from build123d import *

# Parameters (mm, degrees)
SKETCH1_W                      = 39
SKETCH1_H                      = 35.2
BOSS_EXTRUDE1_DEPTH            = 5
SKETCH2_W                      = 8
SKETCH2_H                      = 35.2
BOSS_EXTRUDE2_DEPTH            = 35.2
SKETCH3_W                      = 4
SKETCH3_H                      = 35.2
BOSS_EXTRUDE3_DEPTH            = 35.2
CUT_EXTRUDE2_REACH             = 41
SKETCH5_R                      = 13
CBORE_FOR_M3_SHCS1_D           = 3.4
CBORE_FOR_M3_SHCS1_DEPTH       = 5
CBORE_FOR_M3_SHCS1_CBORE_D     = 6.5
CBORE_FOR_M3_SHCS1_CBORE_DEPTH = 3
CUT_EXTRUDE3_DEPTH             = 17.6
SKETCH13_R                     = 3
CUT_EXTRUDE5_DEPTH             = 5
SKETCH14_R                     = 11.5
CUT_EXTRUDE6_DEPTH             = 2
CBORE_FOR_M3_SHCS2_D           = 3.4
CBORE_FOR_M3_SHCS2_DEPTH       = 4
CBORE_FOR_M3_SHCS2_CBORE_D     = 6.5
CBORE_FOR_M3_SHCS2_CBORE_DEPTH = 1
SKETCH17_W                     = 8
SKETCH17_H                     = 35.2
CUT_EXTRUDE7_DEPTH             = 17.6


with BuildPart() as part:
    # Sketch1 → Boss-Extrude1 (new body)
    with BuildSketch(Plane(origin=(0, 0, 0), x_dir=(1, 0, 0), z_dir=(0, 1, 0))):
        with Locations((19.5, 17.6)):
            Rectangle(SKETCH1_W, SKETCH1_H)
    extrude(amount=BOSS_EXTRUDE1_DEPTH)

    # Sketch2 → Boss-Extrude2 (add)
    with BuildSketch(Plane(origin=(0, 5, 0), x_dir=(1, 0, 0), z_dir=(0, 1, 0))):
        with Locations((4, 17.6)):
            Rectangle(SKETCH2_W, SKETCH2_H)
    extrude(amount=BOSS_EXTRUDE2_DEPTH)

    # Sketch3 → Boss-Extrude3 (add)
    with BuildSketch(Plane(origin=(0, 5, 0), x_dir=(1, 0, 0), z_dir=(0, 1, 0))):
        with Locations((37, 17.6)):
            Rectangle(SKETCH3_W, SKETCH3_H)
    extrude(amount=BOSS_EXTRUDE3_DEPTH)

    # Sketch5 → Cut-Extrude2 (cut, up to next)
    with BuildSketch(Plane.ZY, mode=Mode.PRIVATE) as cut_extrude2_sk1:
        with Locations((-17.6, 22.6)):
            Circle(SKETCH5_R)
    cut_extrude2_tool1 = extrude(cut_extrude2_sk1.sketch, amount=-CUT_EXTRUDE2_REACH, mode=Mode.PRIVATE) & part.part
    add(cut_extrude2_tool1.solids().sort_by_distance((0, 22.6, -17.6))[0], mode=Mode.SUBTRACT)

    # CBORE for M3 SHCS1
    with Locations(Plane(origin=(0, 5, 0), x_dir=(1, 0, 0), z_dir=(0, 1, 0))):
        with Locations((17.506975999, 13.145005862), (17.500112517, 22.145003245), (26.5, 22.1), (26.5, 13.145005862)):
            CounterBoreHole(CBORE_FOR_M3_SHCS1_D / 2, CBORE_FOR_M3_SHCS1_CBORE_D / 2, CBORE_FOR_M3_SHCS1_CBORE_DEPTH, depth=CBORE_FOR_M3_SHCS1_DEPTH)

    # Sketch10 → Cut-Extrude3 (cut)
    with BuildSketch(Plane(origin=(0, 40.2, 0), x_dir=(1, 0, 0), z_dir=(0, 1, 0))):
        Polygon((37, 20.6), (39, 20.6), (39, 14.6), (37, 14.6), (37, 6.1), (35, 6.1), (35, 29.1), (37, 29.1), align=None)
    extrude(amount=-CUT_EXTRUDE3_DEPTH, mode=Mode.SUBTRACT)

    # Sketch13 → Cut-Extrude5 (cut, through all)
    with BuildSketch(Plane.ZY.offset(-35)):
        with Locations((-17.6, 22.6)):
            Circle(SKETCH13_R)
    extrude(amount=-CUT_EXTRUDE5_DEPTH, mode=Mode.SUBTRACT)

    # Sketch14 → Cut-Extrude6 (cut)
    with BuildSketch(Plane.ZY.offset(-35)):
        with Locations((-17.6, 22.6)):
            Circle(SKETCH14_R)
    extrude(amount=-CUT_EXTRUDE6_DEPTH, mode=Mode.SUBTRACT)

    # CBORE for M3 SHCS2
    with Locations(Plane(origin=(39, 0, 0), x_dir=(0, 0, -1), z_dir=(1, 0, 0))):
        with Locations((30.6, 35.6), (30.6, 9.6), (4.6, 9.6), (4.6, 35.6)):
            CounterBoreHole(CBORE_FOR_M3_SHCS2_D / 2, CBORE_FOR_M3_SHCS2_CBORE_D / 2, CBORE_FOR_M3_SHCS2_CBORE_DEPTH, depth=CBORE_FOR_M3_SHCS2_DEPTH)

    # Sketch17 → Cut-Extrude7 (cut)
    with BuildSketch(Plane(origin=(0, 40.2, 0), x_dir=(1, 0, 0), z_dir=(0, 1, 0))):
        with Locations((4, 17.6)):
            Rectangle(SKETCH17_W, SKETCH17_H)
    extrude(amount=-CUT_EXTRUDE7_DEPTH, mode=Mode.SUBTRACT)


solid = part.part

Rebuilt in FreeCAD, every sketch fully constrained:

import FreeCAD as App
import Part
import Sketcher
Q = App.Units.Quantity


def add_polygon(sketch, points):
    """Adds a closed chain of lines whose ends are joined by coincident constraints."""
    first, n = sketch.GeometryCount, len(points)
    for a, b in zip(points, points[1:] + points[:1]):
        sketch.addGeometry(Part.LineSegment(App.Vector(*a, 0), App.Vector(*b, 0)), False)
    for i in range(n):
        sketch.addConstraint(Sketcher.Constraint("Coincident", first + i, 2, first + (i + 1) % n, 1))

doc = App.newDocument("Part")
body = doc.addObject("PartDesign::Body", "Body")

# Sketch on XZ plane
sketch1 = doc.addObject("Sketcher::SketchObject", "Sketch")
body.addObject(sketch1)
sketch1.AttachmentSupport = (doc.XZ_Plane, [""])
sketch1.MapMode = "FlatFace"
add_polygon(sketch1, [(0, -35), (0, 0), (39, 0), (39, -35)])  # lines 0-3
sketch1.addConstraint(Sketcher.Constraint("Vertical", 0))
sketch1.addConstraint(Sketcher.Constraint("Horizontal", 1))
sketch1.addConstraint(Sketcher.Constraint("Vertical", 2))
sketch1.addConstraint(Sketcher.Constraint("Horizontal", 3))
sketch1.addConstraint(Sketcher.Constraint("Coincident", 0, 2, -1, 1))
sketch1.addConstraint(Sketcher.Constraint("DistanceX", 1, 1, 1, 2, Q("39 mm")))
sketch1.addConstraint(Sketcher.Constraint("DistanceY", 0, 1, 0, 2, Q("35.2 mm")))
pad1 = doc.addObject("PartDesign::Pad", "Pad")
body.addObject(pad1)
pad1.Profile = sketch1
pad1.Length = 5
pad1.Reversed = True

# Sketch on XZ plane
sketch2 = doc.addObject("Sketcher::SketchObject", "Sketch001")
body.addObject(sketch2)
sketch2.AttachmentSupport = (doc.XZ_Plane, [""])
sketch2.MapMode = "FlatFace"
sketch2.AttachmentOffset = App.Placement(App.Vector(0, 0, -5), App.Rotation())
add_polygon(sketch2, [(0, -35), (0, 0), (8, 0), (8, -35)])  # lines 0-3
sketch2.addConstraint(Sketcher.Constraint("Vertical", 0))
sketch2.addConstraint(Sketcher.Constraint("Horizontal", 1))
sketch2.addConstraint(Sketcher.Constraint("Vertical", 2))
sketch2.addConstraint(Sketcher.Constraint("Horizontal", 3))
sketch2.addConstraint(Sketcher.Constraint("Coincident", 0, 2, -1, 1))
sketch2.addConstraint(Sketcher.Constraint("DistanceX", 1, 1, 1, 2, Q("8 mm")))
sketch2.addConstraint(Sketcher.Constraint("DistanceY", 0, 1, 0, 2, Q("35.2 mm")))
pad2 = doc.addObject("PartDesign::Pad", "Pad001")
body.addObject(pad2)
pad2.Profile = sketch2
pad2.Length = 35.2
pad2.Reversed = True

# Sketch on XZ plane
sketch3 = doc.addObject("Sketcher::SketchObject", "Sketch002")
body.addObject(sketch3)
sketch3.AttachmentSupport = (doc.XZ_Plane, [""])
sketch3.MapMode = "FlatFace"
sketch3.AttachmentOffset = App.Placement(App.Vector(0, 0, -5), App.Rotation())
add_polygon(sketch3, [(35, -35.2), (35, 0), (39, 0), (39, -35.2)])  # lines 0-3
sketch3.addConstraint(Sketcher.Constraint("Vertical", 0))
sketch3.addConstraint(Sketcher.Constraint("Horizontal", 1))
sketch3.addConstraint(Sketcher.Constraint("Vertical", 2))
sketch3.addConstraint(Sketcher.Constraint("Horizontal", 3))
sketch3.addConstraint(Sketcher.Constraint("PointOnObject", 0, 2, -1))
sketch3.addConstraint(Sketcher.Constraint("DistanceX", 1, 1, 1, 2, Q("4 mm")))
sketch3.addConstraint(Sketcher.Constraint("DistanceY", 0, 1, 0, 2, Q("35.2 mm")))
sketch3.addConstraint(Sketcher.Constraint("DistanceX", -1, 1, 0, 2, Q("35 mm")))
pad3 = doc.addObject("PartDesign::Pad", "Pad002")
body.addObject(pad3)
pad3.Profile = sketch3
pad3.Length = 35.2
pad3.Reversed = True

# Sketch on YZ plane
sketch4 = doc.addObject("Sketcher::SketchObject", "Sketch003")
body.addObject(sketch4)
sketch4.AttachmentSupport = (doc.YZ_Plane, [""])
sketch4.MapMode = "FlatFace"
sketch4.addGeometry(Part.Circle(App.Vector(23, -18, 0), App.Vector(0, 0, 1), 13), False)
sketch4.addConstraint(Sketcher.Constraint("Diameter", 0, Q("26 mm")))
sketch4.addConstraint(Sketcher.Constraint("DistanceX", -1, 1, 0, 3, Q("22.6 mm")))
sketch4.addConstraint(Sketcher.Constraint("DistanceY", 0, 3, -1, 1, Q("17.6 mm")))
pocket1 = doc.addObject("PartDesign::Pocket", "Pocket")
body.addObject(pocket1)
pocket1.Profile = sketch4
pocket1.Type = "UpToFirst"
pocket1.Reversed = True

# Sketch on XZ plane
sketch5 = doc.addObject("Sketcher::SketchObject", "Sketch004")
body.addObject(sketch5)
sketch5.AttachmentSupport = (doc.XZ_Plane, [""])
sketch5.MapMode = "FlatFace"
sketch5.AttachmentOffset = App.Placement(App.Vector(0, 0, -5), App.Rotation())
sketch5.addGeometry(Part.Circle(App.Vector(17.5, -13.1, 0), App.Vector(0, 0, 1), 1.7), False)
sketch5.addGeometry(Part.Circle(App.Vector(17.5, -22.1, 0), App.Vector(0, 0, 1), 1.7), False)
sketch5.addGeometry(Part.Circle(App.Vector(26.5, -22.1, 0), App.Vector(0, 0, 1), 1.7), False)
sketch5.addGeometry(Part.Circle(App.Vector(26.5, -13.1, 0), App.Vector(0, 0, 1), 1.7), False)
sketch5.addConstraint(Sketcher.Constraint("Equal", 0, 1))
sketch5.addConstraint(Sketcher.Constraint("Equal", 1, 2))
sketch5.addConstraint(Sketcher.Constraint("Equal", 2, 3))
sketch5.addConstraint(Sketcher.Constraint("Horizontal", 0, 3, 3, 3))
sketch5.addConstraint(Sketcher.Constraint("Vertical", 2, 3, 3, 3))
sketch5.addConstraint(Sketcher.Constraint("Diameter", 0, Q("3.4 mm")))
sketch5.addConstraint(Sketcher.Constraint("DistanceX", -1, 1, 2, 3, Q("26.5 mm")))
sketch5.addConstraint(Sketcher.Constraint("DistanceY", 2, 3, -1, 1, Q("22.1 mm")))
sketch5.addConstraint(Sketcher.Constraint("DistanceX", -1, 1, 0, 3, Q("17.506976 mm")))
sketch5.addConstraint(Sketcher.Constraint("DistanceY", 0, 3, -1, 1, Q("13.145006 mm")))
sketch5.addConstraint(Sketcher.Constraint("DistanceX", -1, 1, 1, 3, Q("17.500113 mm")))
sketch5.addConstraint(Sketcher.Constraint("DistanceY", 1, 3, -1, 1, Q("22.145003 mm")))
doc.recompute()
hole = doc.addObject("PartDesign::Hole", "Hole")
body.addObject(hole)
hole.Profile = sketch5
hole.ThreadType = "None"
hole.Diameter = 3.4
hole.DepthType = "Dimension"
hole.Depth = 5
hole.DrillPoint = "Flat"
hole.HoleCutType = "Counterbore"
hole.HoleCutDiameter = 6.5
hole.HoleCutDepth = 3
hole.Reversed = True

# Sketch on XZ plane
sketch6 = doc.addObject("Sketcher::SketchObject", "Sketch005")
body.addObject(sketch6)
sketch6.AttachmentSupport = (doc.XZ_Plane, [""])
sketch6.MapMode = "FlatFace"
sketch6.AttachmentOffset = App.Placement(App.Vector(0, 0, -40.2), App.Rotation())
add_polygon(sketch6, [(39, -20.6), (37, -20.6), (37, -29.1), (35, -29.1), (35, -6.1), (37, -6.1), (37, -14.6), (39, -14.6)])  # lines 0-7
sketch6.addConstraint(Sketcher.Constraint("Horizontal", 0))
sketch6.addConstraint(Sketcher.Constraint("Vertical", 1))
sketch6.addConstraint(Sketcher.Constraint("Horizontal", 2))
sketch6.addConstraint(Sketcher.Constraint("Vertical", 3))
sketch6.addConstraint(Sketcher.Constraint("Horizontal", 4))
sketch6.addConstraint(Sketcher.Constraint("Vertical", 5))
sketch6.addConstraint(Sketcher.Constraint("Horizontal", 6))
sketch6.addConstraint(Sketcher.Constraint("Vertical", 7))
sketch6.addConstraint(Sketcher.Constraint("Vertical", 1, 2, 4, 2))
sketch6.addConstraint(Sketcher.Constraint("Equal", 0, 2))
sketch6.addConstraint(Sketcher.Constraint("Equal", 1, 5))
sketch6.addConstraint(Sketcher.Constraint("DistanceX", 0, 2, 0, 1, Q("2 mm")))
sketch6.addConstraint(Sketcher.Constraint("DistanceY", 3, 1, 3, 2, Q("23 mm")))
sketch6.addConstraint(Sketcher.Constraint("DistanceY", 7, 2, 7, 1, Q("6 mm")))
sketch6.addConstraint(Sketcher.Constraint("DistanceX", -1, 1, 0, 2, Q("37 mm")))
sketch6.addConstraint(Sketcher.Constraint("DistanceY", 0, 2, -1, 1, Q("20.6 mm")))
pocket2 = doc.addObject("PartDesign::Pocket", "Pocket001")
body.addObject(pocket2)
pocket2.Profile = sketch6
pocket2.Length = 17.6
pocket2.Reversed = True

# Sketch on YZ plane
sketch7 = doc.addObject("Sketcher::SketchObject", "Sketch006")
body.addObject(sketch7)
sketch7.AttachmentSupport = (doc.YZ_Plane, [""])
sketch7.MapMode = "FlatFace"
sketch7.AttachmentOffset = App.Placement(App.Vector(0, 0, 35), App.Rotation())
sketch7.addGeometry(Part.Circle(App.Vector(22.6, -17.6, 0), App.Vector(0, 0, 1), 3), False)
sketch7.addConstraint(Sketcher.Constraint("Diameter", 0, Q("6 mm")))
sketch7.addConstraint(Sketcher.Constraint("DistanceX", -1, 1, 0, 3, Q("22.6 mm")))
sketch7.addConstraint(Sketcher.Constraint("DistanceY", 0, 3, -1, 1, Q("17.6 mm")))
pocket3 = doc.addObject("PartDesign::Pocket", "Pocket002")
body.addObject(pocket3)
pocket3.Profile = sketch7
pocket3.Type = "ThroughAll"
pocket3.Reversed = True

# Sketch on YZ plane
sketch8 = doc.addObject("Sketcher::SketchObject", "Sketch007")
body.addObject(sketch8)
sketch8.AttachmentSupport = (doc.YZ_Plane, [""])
sketch8.MapMode = "FlatFace"
sketch8.AttachmentOffset = App.Placement(App.Vector(0, 0, 35), App.Rotation())
sketch8.addGeometry(Part.Circle(App.Vector(23, -18, 0), App.Vector(0, 0, 1), 12), False)
sketch8.addConstraint(Sketcher.Constraint("Diameter", 0, Q("23 mm")))
sketch8.addConstraint(Sketcher.Constraint("DistanceX", -1, 1, 0, 3, Q("22.6 mm")))
sketch8.addConstraint(Sketcher.Constraint("DistanceY", 0, 3, -1, 1, Q("17.6 mm")))
pocket4 = doc.addObject("PartDesign::Pocket", "Pocket003")
body.addObject(pocket4)
pocket4.Profile = sketch8
pocket4.Length = 2
pocket4.Reversed = True

# Sketch on YZ plane
sketch9 = doc.addObject("Sketcher::SketchObject", "Sketch008")
body.addObject(sketch9)
sketch9.AttachmentSupport = (doc.YZ_Plane, [""])
sketch9.MapMode = "FlatFace"
sketch9.AttachmentOffset = App.Placement(App.Vector(0, 0, 39), App.Rotation())
sketch9.addGeometry(Part.Circle(App.Vector(35.6, -30.6, 0), App.Vector(0, 0, 1), 1.7), False)
sketch9.addGeometry(Part.Circle(App.Vector(9.6, -30.6, 0), App.Vector(0, 0, 1), 1.7), False)
sketch9.addGeometry(Part.Circle(App.Vector(9.6, -4.6, 0), App.Vector(0, 0, 1), 1.7), False)
sketch9.addGeometry(Part.Circle(App.Vector(35.6, -4.6, 0), App.Vector(0, 0, 1), 1.7), False)
sketch9.addConstraint(Sketcher.Constraint("Equal", 0, 1))
sketch9.addConstraint(Sketcher.Constraint("Equal", 1, 2))
sketch9.addConstraint(Sketcher.Constraint("Equal", 2, 3))
sketch9.addConstraint(Sketcher.Constraint("Horizontal", 0, 3, 1, 3))
sketch9.addConstraint(Sketcher.Constraint("Horizontal", 2, 3, 3, 3))
sketch9.addConstraint(Sketcher.Constraint("Vertical", 1, 3, 2, 3))
sketch9.addConstraint(Sketcher.Constraint("Vertical", 0, 3, 3, 3))
sketch9.addConstraint(Sketcher.Constraint("Diameter", 0, Q("3.4 mm")))
sketch9.addConstraint(Sketcher.Constraint("DistanceX", 1, 3, 0, 3, Q("26 mm")))
sketch9.addConstraint(Sketcher.Constraint("DistanceY", 1, 3, 2, 3, Q("26 mm")))
sketch9.addConstraint(Sketcher.Constraint("DistanceX", -1, 1, 0, 3, Q("35.6 mm")))
sketch9.addConstraint(Sketcher.Constraint("DistanceY", 0, 3, -1, 1, Q("30.6 mm")))
doc.recompute()
hole2 = doc.addObject("PartDesign::Hole", "Hole001")
body.addObject(hole2)
hole2.Profile = sketch9
hole2.ThreadType = "None"
hole2.Diameter = 3.4
hole2.DepthType = "Dimension"
hole2.Depth = 4
hole2.DrillPoint = "Flat"
hole2.HoleCutType = "Counterbore"
hole2.HoleCutDiameter = 6.5
hole2.HoleCutDepth = 1

# Sketch on XZ plane
sketch10 = doc.addObject("Sketcher::SketchObject", "Sketch009")
body.addObject(sketch10)
sketch10.AttachmentSupport = (doc.XZ_Plane, [""])
sketch10.MapMode = "FlatFace"
sketch10.AttachmentOffset = App.Placement(App.Vector(0, 0, -40.2), App.Rotation())
add_polygon(sketch10, [(0, -35), (0, 0), (8, 0), (8, -35)])  # lines 0-3
sketch10.addConstraint(Sketcher.Constraint("Vertical", 0))
sketch10.addConstraint(Sketcher.Constraint("Horizontal", 1))
sketch10.addConstraint(Sketcher.Constraint("Vertical", 2))
sketch10.addConstraint(Sketcher.Constraint("Horizontal", 3))
sketch10.addConstraint(Sketcher.Constraint("Coincident", 0, 2, -1, 1))
sketch10.addConstraint(Sketcher.Constraint("DistanceX", 1, 1, 1, 2, Q("8 mm")))
sketch10.addConstraint(Sketcher.Constraint("DistanceY", 0, 1, 0, 2, Q("35.2 mm")))
pocket5 = doc.addObject("PartDesign::Pocket", "Pocket004")
body.addObject(pocket5)
pocket5.Profile = sketch10
pocket5.Length = 17.6
pocket5.Reversed = True

doc.recompute()
